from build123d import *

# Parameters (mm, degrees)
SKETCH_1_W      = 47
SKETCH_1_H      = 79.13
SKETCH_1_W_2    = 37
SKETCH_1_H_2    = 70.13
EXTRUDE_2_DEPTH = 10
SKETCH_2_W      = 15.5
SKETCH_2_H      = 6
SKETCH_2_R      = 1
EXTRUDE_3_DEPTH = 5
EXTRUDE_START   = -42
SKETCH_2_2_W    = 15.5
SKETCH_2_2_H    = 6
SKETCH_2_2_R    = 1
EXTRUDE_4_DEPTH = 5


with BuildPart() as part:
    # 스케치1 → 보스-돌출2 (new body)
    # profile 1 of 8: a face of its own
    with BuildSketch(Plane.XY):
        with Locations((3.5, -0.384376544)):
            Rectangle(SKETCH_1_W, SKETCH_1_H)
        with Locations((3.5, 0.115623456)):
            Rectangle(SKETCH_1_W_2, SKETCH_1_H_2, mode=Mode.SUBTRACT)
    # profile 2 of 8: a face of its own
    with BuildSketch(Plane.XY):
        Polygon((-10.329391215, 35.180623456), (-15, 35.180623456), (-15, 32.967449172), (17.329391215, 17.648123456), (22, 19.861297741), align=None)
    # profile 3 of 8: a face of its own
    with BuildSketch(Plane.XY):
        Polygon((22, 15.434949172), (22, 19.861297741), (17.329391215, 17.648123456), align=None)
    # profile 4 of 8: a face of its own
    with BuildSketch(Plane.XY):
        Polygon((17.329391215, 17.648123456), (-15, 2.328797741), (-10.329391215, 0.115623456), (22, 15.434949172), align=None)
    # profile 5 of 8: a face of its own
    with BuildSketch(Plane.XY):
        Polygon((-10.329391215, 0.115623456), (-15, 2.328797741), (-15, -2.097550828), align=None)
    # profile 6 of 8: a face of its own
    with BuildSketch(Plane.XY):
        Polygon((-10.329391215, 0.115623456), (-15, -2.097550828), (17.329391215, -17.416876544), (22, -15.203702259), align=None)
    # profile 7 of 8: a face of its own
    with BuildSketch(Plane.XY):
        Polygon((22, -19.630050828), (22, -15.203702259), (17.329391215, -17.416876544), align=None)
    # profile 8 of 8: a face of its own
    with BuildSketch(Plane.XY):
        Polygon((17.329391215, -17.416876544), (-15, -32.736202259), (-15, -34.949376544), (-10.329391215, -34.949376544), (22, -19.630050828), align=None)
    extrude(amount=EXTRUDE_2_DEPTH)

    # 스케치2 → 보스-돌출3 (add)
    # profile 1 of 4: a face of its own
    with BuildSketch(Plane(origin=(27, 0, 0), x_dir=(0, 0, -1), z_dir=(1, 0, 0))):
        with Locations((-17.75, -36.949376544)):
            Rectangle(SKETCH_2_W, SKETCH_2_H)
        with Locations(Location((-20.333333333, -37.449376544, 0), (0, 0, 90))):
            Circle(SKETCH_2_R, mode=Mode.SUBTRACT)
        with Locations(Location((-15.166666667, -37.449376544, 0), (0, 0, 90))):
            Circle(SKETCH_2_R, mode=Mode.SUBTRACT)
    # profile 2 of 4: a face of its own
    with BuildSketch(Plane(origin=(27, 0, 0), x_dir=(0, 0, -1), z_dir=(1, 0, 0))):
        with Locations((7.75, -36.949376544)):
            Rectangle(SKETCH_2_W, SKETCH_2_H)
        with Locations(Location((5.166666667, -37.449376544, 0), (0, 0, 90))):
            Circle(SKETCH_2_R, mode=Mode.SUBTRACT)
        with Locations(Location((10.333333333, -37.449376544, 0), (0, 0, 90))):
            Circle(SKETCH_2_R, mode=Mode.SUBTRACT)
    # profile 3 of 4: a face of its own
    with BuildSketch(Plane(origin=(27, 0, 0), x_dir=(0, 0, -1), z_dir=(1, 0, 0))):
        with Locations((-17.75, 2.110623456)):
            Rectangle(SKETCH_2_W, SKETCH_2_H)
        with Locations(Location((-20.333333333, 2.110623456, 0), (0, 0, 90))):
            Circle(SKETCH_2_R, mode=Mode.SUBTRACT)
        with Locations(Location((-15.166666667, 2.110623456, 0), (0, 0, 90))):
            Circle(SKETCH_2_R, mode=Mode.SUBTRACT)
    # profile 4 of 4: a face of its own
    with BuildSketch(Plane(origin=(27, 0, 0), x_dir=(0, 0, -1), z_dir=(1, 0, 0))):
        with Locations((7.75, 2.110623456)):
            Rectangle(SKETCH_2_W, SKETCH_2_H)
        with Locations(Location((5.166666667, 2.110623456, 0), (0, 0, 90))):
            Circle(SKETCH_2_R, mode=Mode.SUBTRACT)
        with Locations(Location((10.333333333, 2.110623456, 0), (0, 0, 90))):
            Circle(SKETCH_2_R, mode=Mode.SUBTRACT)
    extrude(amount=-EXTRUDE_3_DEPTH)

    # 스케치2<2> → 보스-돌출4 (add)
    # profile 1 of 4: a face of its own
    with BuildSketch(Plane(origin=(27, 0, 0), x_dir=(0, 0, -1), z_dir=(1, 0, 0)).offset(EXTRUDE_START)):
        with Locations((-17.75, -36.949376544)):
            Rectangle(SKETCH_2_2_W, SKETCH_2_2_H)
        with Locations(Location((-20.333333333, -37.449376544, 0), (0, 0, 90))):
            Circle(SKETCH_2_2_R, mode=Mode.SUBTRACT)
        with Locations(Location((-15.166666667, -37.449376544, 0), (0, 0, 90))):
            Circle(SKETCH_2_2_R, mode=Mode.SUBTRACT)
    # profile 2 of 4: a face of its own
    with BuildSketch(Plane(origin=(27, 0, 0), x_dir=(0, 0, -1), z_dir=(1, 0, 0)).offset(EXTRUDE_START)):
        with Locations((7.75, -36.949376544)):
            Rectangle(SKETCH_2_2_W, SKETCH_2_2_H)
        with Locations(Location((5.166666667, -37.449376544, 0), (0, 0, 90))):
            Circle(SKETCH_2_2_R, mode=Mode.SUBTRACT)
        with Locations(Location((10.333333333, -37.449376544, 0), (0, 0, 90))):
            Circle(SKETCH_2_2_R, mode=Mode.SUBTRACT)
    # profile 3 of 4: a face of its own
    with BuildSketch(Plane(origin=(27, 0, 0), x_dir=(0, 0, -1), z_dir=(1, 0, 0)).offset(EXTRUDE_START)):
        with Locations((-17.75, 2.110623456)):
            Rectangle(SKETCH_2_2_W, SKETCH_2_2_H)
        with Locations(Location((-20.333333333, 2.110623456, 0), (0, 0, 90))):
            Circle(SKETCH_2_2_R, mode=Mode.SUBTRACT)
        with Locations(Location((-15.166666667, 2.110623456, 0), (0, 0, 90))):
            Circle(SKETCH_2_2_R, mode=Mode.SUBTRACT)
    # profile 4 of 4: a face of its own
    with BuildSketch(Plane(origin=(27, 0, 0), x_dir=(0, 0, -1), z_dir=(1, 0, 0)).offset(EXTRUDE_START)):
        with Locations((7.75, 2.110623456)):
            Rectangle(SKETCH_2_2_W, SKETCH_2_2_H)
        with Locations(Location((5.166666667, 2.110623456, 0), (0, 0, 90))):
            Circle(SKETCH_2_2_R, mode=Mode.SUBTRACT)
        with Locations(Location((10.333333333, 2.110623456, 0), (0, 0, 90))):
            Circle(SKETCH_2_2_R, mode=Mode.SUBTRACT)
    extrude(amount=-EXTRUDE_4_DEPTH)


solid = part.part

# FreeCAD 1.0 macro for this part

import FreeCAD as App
import Part
import Sketcher
Q = App.Units.Quantity


def add_polygon(sketch, points):
    """Adds a closed chain of lines whose ends are joined by coincident constraints."""
    first, n = sketch.GeometryCount, len(points)
    for a, b in zip(points, points[1:] + points[:1]):
        sketch.addGeometry(Part.LineSegment(App.Vector(*a, 0), App.Vector(*b, 0)), False)
    for i in range(n):
        sketch.addConstraint(Sketcher.Constraint("Coincident", first + i, 2, first + (i + 1) % n, 1))

doc = App.newDocument("Part")
body = doc.addObject("PartDesign::Body", "Body")

# Sketch on XY plane
sketch1 = body.newObject("Sketcher::SketchObject", "Sketch")
sketch1.AttachmentSupport = (doc.getObject("XY_Plane"), [""])
sketch1.MapMode = "FlatFace"
add_polygon(sketch1, [(-20, 39.180623), (-20, -39.949377), (27, -39.949377), (27, 39.180623)])  # lines 0-3
add_polygon(sketch1, [(22, -34.949377), (-10.329391, -34.949377), (22, -19.630051)])  # lines 4-6
add_polygon(sketch1, [(22, 15.434949), (22, -15.203702), (-10.329391, 0.115623)])  # lines 7-9
add_polygon(sketch1, [(22, 35.180623), (22, 19.861298), (-10.329391, 35.180623)])  # lines 10-12
add_polygon(sketch1, [(-15, -32.736202), (-15, -2.097551), (17.329391, -17.416877)])  # lines 13-15
add_polygon(sketch1, [(-15, 2.328798), (-15, 32.967449), (17.329391, 17.648123)])  # lines 16-18
sketch1.addConstraint([
    Sketcher.Constraint("Vertical", 0),
    Sketcher.Constraint("Horizontal", 1),
    Sketcher.Constraint("Vertical", 2),
    Sketcher.Constraint("Horizontal", 3),
    Sketcher.Constraint("Horizontal", 4),
    Sketcher.Constraint("Vertical", 6),
    Sketcher.Constraint("Vertical", 7),
    Sketcher.Constraint("Vertical", 10),
    Sketcher.Constraint("Horizontal", 12),
    Sketcher.Constraint("Vertical", 13),
    Sketcher.Constraint("Vertical", 16),
    Sketcher.Constraint("Parallel", 5, 9),
    Sketcher.Constraint("Parallel", 8, 11),
    Sketcher.Constraint("Parallel", 11, 14),
    Sketcher.Constraint("Parallel", 9, 15),
    Sketcher.Constraint("Parallel", 14, 17),
    Sketcher.Constraint("Parallel", 15, 18),
    Sketcher.Constraint("Vertical", 6, 2, 7, 2),
    Sketcher.Constraint("Vertical", 4, 2, 8, 2),
    Sketcher.Constraint("Vertical", 9, 2, 10, 2),
    Sketcher.Constraint("Vertical", 8, 2, 11, 2),
    Sketcher.Constraint("Vertical", 15, 2, 16, 2),
    Sketcher.Constraint("Vertical", 14, 2, 17, 2),
    Sketcher.Constraint("Equal", 6, 10),
    Sketcher.Constraint("Equal", 7, 13),
    Sketcher.Constraint("DistanceX", 1, 1, 1, 2, Q("47 mm")),
    Sketcher.Constraint("DistanceX", 0, 2, -1, 1, Q("20 mm")),
    Sketcher.Constraint("DistanceX", -1, 1, 5, 2, Q("22 mm")),
    Sketcher.Constraint("DistanceX", 13, 2, -1, 1, Q("15 mm")),
    Sketcher.Constraint("DistanceY", 0, 2, 4, 2, Q("5 mm")),
    Sketcher.Constraint("DistanceY", 11, 2, 3, 2, Q("4 mm")),
    Sketcher.Constraint("DistanceY", 0, 2, 0, 1, Q("79.13 mm")),
    Sketcher.Constraint("DistanceY", 4, 2, 8, 2, Q("35.065 mm")),
    Sketcher.Constraint("DistanceY", 13, 2, 16, 2, Q("35.065 mm")),
    Sketcher.Constraint("DistanceX", 4, 2, 4, 1, Q("32.329391 mm")),
    Sketcher.Constraint("DistanceY", 7, 2, 7, 1, Q("30.638651 mm")),
    Sketcher.Constraint("DistanceY", 6, 2, 14, 2, Q("17.5325 mm")),
    Sketcher.Constraint("DistanceY", 5, 2, -1, 1, Q("19.630051 mm")),
])
pad1 = body.newObject("PartDesign::Pad", "Pad")
pad1.Profile = sketch1
pad1.Length = 10

# Sketch on YZ plane
sketch2 = body.newObject("Sketcher::SketchObject", "Sketch001")
sketch2.AttachmentSupport = (doc.getObject("YZ_Plane"), [""])
sketch2.MapMode = "FlatFace"
sketch2.AttachmentOffset = App.Placement(App.Vector(0, 0, 27), App.Rotation())
add_polygon(sketch2, [(-33.949377, 25.5), (-39.949377, 25.5), (-39.949377, 10), (-33.949377, 10)])  # lines 0-3
sketch2.addGeometry(Part.Circle(App.Vector(-37.449377, 20.333333, 0), App.Vector(0, 0, 1), 1), False)  # 4
sketch2.addGeometry(Part.Circle(App.Vector(-37.449377, 15.166667, 0), App.Vector(0, 0, 1), 1), False)  # 5
add_polygon(sketch2, [(-33.949377, 0), (-39.949377, 0), (-39.949377, -15.5), (-33.949377, -15.5)])  # lines 6-9
sketch2.addGeometry(Part.Circle(App.Vector(-37.449377, -5.166667, 0), App.Vector(0, 0, 1), 1), False)  # 10
sketch2.addGeometry(Part.Circle(App.Vector(-37.449377, -10.333333, 0), App.Vector(0, 0, 1), 1), False)  # 11
add_polygon(sketch2, [(5.110623, 25.5), (-0.889377, 25.5), (-0.889377, 10), (5.110623, 10)])  # lines 12-15
sketch2.addGeometry(Part.Circle(App.Vector(2.110623, 20.333333, 0), App.Vector(0, 0, 1), 1), False)  # 16
sketch2.addGeometry(Part.Circle(App.Vector(2.110623, 15.166667, 0), App.Vector(0, 0, 1), 1), False)  # 17
add_polygon(sketch2, [(5.110623, 0), (-0.889377, 0), (-0.889377, -15.5), (5.110623, -15.5)])  # lines 18-21
sketch2.addGeometry(Part.Circle(App.Vector(2.110623, -5.166667, 0), App.Vector(0, 0, 1), 1), False)  # 22
sketch2.addGeometry(Part.Circle(App.Vector(2.110623, -10.333333, 0), App.Vector(0, 0, 1), 1), False)  # 23
sketch2.addConstraint([
    Sketcher.Constraint("Horizontal", 0),
    Sketcher.Constraint("Vertical", 1),
    Sketcher.Constraint("Horizontal", 2),
    Sketcher.Constraint("Vertical", 3),
    Sketcher.Constraint("Horizontal", 6),
    Sketcher.Constraint("Vertical", 7),
    Sketcher.Constraint("Horizontal", 8),
    Sketcher.Constraint("Vertical", 9),
    Sketcher.Constraint("Horizontal", 12),
    Sketcher.Constraint("Vertical", 13),
    Sketcher.Constraint("Horizontal", 14),
    Sketcher.Constraint("Vertical", 15),
    Sketcher.Constraint("Horizontal", 18),
    Sketcher.Constraint("Vertical", 19),
    Sketcher.Constraint("Horizontal", 20),
    Sketcher.Constraint("Vertical", 21),
    Sketcher.Constraint("Equal", 4, 5),
    Sketcher.Constraint("Equal", 5, 10),
    Sketcher.Constraint("Equal", 10, 11),
    Sketcher.Constraint("Equal", 11, 16),
    Sketcher.Constraint("Equal", 16, 17),
    Sketcher.Constraint("Equal", 17, 22),
    Sketcher.Constraint("Equal", 22, 23),
    Sketcher.Constraint("PointOnObject", 6, 2, -1),
    Sketcher.Constraint("PointOnObject", 18, 2, -1),
    Sketcher.Constraint("Horizontal", 4, 3, 16, 3),
    Sketcher.Constraint("Horizontal", 5, 3, 17, 3),
    Sketcher.Constraint("Horizontal", 10, 3, 22, 3),
    Sketcher.Constraint("Horizontal", 11, 3, 23, 3),
    Sketcher.Constraint("Horizontal", 3, 2, 12, 2),
    Sketcher.Constraint("Horizontal", 2, 2, 13, 2),
    Sketcher.Constraint("Horizontal", 8, 2, 19, 2),
    Sketcher.Constraint("Vertical", 4, 3, 5, 3),
    Sketcher.Constraint("Vertical", 5, 3, 10, 3),
    Sketcher.Constraint("Vertical", 10, 3, 11, 3),
    Sketcher.Constraint("Vertical", 16, 3, 17, 3),
    Sketcher.Constraint("Vertical", 17, 3, 22, 3),
    Sketcher.Constraint("Vertical", 22, 3, 23, 3),
    Sketcher.Constraint("Vertical", 1, 2, 6, 2),
    Sketcher.Constraint("Vertical", 3, 2, 8, 2),
    Sketcher.Constraint("Vertical", 13, 2, 18, 2),
    Sketcher.Constraint("Vertical", 15, 2, 20, 2),
    Sketcher.Constraint("Equal", 8, 12),
    Sketcher.Constraint("Equal", 3, 7),
    Sketcher.Constraint("Diameter", 4, Q("2 mm")),
    Sketcher.Constraint("DistanceX", 0, 2, 0, 1, Q("6 mm")),
    Sketcher.Constraint("DistanceY", 1, 2, 1, 1, Q("15.5 mm")),
    Sketcher.Constraint("DistanceY", -1, 1, 1, 2, Q("10 mm")),
    Sketcher.Constraint("DistanceX", 12, 2, 16, 3, Q("3 mm")),
    Sketcher.Constraint("DistanceY", 10, 3, 4, 3, Q("25.5 mm")),
    Sketcher.Constraint("DistanceY", 11, 3, 5, 3, Q("25.5 mm")),
    Sketcher.Constraint("DistanceX", 0, 2, 4, 3, Q("2.5 mm")),
    Sketcher.Constraint("DistanceX", 4, 3, 16, 3, Q("39.56 mm")),
    Sketcher.Constraint("DistanceX", 4, 3, -1, 1, Q("37.449377 mm")),
    Sketcher.Constraint("DistanceY", -1, 1, 4, 3, Q("20.333333 mm")),
    Sketcher.Constraint("DistanceY", -1, 1, 5, 3, Q("15.166667 mm")),
])
pad2 = body.newObject("PartDesign::Pad", "Pad001")
pad2.Profile = sketch2
pad2.Length = 5
pad2.Reversed = True

# Sketch on YZ plane
sketch3 = body.newObject("Sketcher::SketchObject", "Sketch002")
sketch3.AttachmentSupport = (doc.getObject("YZ_Plane"), [""])
sketch3.MapMode = "FlatFace"
sketch3.AttachmentOffset = App.Placement(App.Vector(0, 0, -15), App.Rotation())
add_polygon(sketch3, [(-33.949377, 25.5), (-39.949377, 25.5), (-39.949377, 10), (-33.949377, 10)])  # lines 0-3
sketch3.addGeometry(Part.Circle(App.Vector(-37.449377, 20.333333, 0), App.Vector(0, 0, 1), 1), False)  # 4
sketch3.addGeometry(Part.Circle(App.Vector(-37.449377, 15.166667, 0), App.Vector(0, 0, 1), 1), False)  # 5
add_polygon(sketch3, [(-33.949377, 0), (-39.949377, 0), (-39.949377, -15.5), (-33.949377, -15.5)])  # lines 6-9
sketch3.addGeometry(Part.Circle(App.Vector(-37.449377, -5.166667, 0), App.Vector(0, 0, 1), 1), False)  # 10
sketch3.addGeometry(Part.Circle(App.Vector(-37.449377, -10.333333, 0), App.Vector(0, 0, 1), 1), False)  # 11
add_polygon(sketch3, [(5.110623, 25.5), (-0.889377, 25.5), (-0.889377, 10), (5.110623, 10)])  # lines 12-15
sketch3.addGeometry(Part.Circle(App.Vector(2.110623, 20.333333, 0), App.Vector(0, 0, 1), 1), False)  # 16
sketch3.addGeometry(Part.Circle(App.Vector(2.110623, 15.166667, 0), App.Vector(0, 0, 1), 1), False)  # 17
add_polygon(sketch3, [(5.110623, 0), (-0.889377, 0), (-0.889377, -15.5), (5.110623, -15.5)])  # lines 18-21
sketch3.addGeometry(Part.Circle(App.Vector(2.110623, -5.166667, 0), App.Vector(0, 0, 1), 1), False)  # 22
sketch3.addGeometry(Part.Circle(App.Vector(2.110623, -10.333333, 0), App.Vector(0, 0, 1), 1), False)  # 23
sketch3.addConstraint([
    Sketcher.Constraint("Horizontal", 0),
    Sketcher.Constraint("Vertical", 1),
    Sketcher.Constraint("Horizontal", 2),
    Sketcher.Constraint("Vertical", 3),
    Sketcher.Constraint("Horizontal", 6),
    Sketcher.Constraint("Vertical", 7),
    Sketcher.Constraint("Horizontal", 8),
    Sketcher.Constraint("Vertical", 9),
    Sketcher.Constraint("Horizontal", 12),
    Sketcher.Constraint("Vertical", 13),
    Sketcher.Constraint("Horizontal", 14),
    Sketcher.Constraint("Vertical", 15),
    Sketcher.Constraint("Horizontal", 18),
    Sketcher.Constraint("Vertical", 19),
    Sketcher.Constraint("Horizontal", 20),
    Sketcher.Constraint("Vertical", 21),
    Sketcher.Constraint("Equal", 4, 5),
    Sketcher.Constraint("Equal", 5, 10),
    Sketcher.Constraint("Equal", 10, 11),
    Sketcher.Constraint("Equal", 11, 16),
    Sketcher.Constraint("Equal", 16, 17),
    Sketcher.Constraint("Equal", 17, 22),
    Sketcher.Constraint("Equal", 22, 23),
    Sketcher.Constraint("PointOnObject", 6, 2, -1),
    Sketcher.Constraint("PointOnObject", 18, 2, -1),
    Sketcher.Constraint("Horizontal", 4, 3, 16, 3),
    Sketcher.Constraint("Horizontal", 5, 3, 17, 3),
    Sketcher.Constraint("Horizontal", 10, 3, 22, 3),
    Sketcher.Constraint("Horizontal", 11, 3, 23, 3),
    Sketcher.Constraint("Horizontal", 3, 2, 12, 2),
    Sketcher.Constraint("Horizontal", 2, 2, 13, 2),
    Sketcher.Constraint("Horizontal", 8, 2, 19, 2),
    Sketcher.Constraint("Vertical", 4, 3, 5, 3),
    Sketcher.Constraint("Vertical", 5, 3, 10, 3),
    Sketcher.Constraint("Vertical", 10, 3, 11, 3),
    Sketcher.Constraint("Vertical", 16, 3, 17, 3),
    Sketcher.Constraint("Vertical", 17, 3, 22, 3),
    Sketcher.Constraint("Vertical", 22, 3, 23, 3),
    Sketcher.Constraint("Vertical", 1, 2, 6, 2),
    Sketcher.Constraint("Vertical", 3, 2, 8, 2),
    Sketcher.Constraint("Vertical", 13, 2, 18, 2),
    Sketcher.Constraint("Vertical", 15, 2, 20, 2),
    Sketcher.Constraint("Equal", 8, 12),
    Sketcher.Constraint("Equal", 3, 7),
    Sketcher.Constraint("Diameter", 4, Q("2 mm")),
    Sketcher.Constraint("DistanceX", 0, 2, 0, 1, Q("6 mm")),
    Sketcher.Constraint("DistanceY", 1, 2, 1, 1, Q("15.5 mm")),
    Sketcher.Constraint("DistanceY", -1, 1, 1, 2, Q("10 mm")),
    Sketcher.Constraint("DistanceX", 12, 2, 16, 3, Q("3 mm")),
    Sketcher.Constraint("DistanceY", 10, 3, 4, 3, Q("25.5 mm")),
    Sketcher.Constraint("DistanceY", 11, 3, 5, 3, Q("25.5 mm")),
    Sketcher.Constraint("DistanceX", 0, 2, 4, 3, Q("2.5 mm")),
    Sketcher.Constraint("DistanceX", 4, 3, 16, 3, Q("39.56 mm")),
    Sketcher.Constraint("DistanceX", 4, 3, -1, 1, Q("37.449377 mm")),
    Sketcher.Constraint("DistanceY", -1, 1, 4, 3, Q("20.333333 mm")),
    Sketcher.Constraint("DistanceY", -1, 1, 5, 3, Q("15.166667 mm")),
])
pad3 = body.newObject("PartDesign::Pad", "Pad002")
pad3.Profile = sketch3
pad3.Length = 5
pad3.Reversed = True

doc.recompute()
